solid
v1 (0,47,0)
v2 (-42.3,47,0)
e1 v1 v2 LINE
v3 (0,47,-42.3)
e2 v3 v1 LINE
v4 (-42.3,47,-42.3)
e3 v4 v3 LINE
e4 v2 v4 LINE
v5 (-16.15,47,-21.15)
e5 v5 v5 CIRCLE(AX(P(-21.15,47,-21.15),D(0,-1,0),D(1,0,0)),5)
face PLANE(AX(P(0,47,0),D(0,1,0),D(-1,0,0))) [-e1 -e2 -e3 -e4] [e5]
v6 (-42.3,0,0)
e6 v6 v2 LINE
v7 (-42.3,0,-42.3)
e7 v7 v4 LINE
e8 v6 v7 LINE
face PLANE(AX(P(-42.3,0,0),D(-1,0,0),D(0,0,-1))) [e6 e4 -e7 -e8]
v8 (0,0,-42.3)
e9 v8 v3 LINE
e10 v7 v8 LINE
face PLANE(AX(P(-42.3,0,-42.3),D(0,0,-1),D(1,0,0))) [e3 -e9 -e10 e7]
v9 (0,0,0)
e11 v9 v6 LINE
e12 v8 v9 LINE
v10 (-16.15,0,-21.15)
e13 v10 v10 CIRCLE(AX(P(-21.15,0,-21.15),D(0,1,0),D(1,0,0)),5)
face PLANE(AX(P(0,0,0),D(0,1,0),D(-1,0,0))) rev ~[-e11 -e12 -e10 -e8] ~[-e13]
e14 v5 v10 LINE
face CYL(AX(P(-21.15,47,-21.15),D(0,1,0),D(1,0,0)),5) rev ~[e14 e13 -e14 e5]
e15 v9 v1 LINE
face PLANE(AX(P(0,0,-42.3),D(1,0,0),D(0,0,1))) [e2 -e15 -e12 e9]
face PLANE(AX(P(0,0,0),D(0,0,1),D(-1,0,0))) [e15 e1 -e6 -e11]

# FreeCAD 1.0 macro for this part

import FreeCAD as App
import Part
import Sketcher

V = App.Vector
Q = App.Units.Quantity


def add_polygon(sketch, points):
    """Adds a closed chain of lines whose ends are joined by coincident constraints."""
    first, n = sketch.GeometryCount, len(points)
    for a, b in zip(points, points[1:] + points[:1]):
        sketch.addGeometry(Part.LineSegment(App.Vector(*a, 0), App.Vector(*b, 0)), False)
    for i in range(n):
        sketch.addConstraint(Sketcher.Constraint("Coincident", first + i, 2, first + (i + 1) % n, 1))

doc = App.newDocument("Part")
body = doc.addObject("PartDesign::Body", "Body")

# Sketch on XZ plane
sketch1 = body.newObject("Sketcher::SketchObject", "Sketch")
sketch1.AttachmentSupport = (doc.getObject("XZ_Plane"), [""])
sketch1.MapMode = "FlatFace"
add_polygon(sketch1, [(-42, 0), (0, 0), (0, -42), (-42, -42)])  # lines 0-3
sketch1.addConstraint(Sketcher.Constraint("Horizontal", 0))
sketch1.addConstraint(Sketcher.Constraint("Vertical", 1))
sketch1.addConstraint(Sketcher.Constraint("Horizontal", 2))
sketch1.addConstraint(Sketcher.Constraint("Vertical", 3))
sketch1.addConstraint(Sketcher.Constraint("Coincident", 0, 2, -1, 1))
sketch1.addConstraint(Sketcher.Constraint("Equal", 2, 1))
sketch1.addConstraint(Sketcher.Constraint("DistanceX", 0, 1, 0, 2, Q("42.3 mm")))
pad1 = body.newObject("PartDesign::Pad", "Pad")
pad1.Profile = sketch1
pad1.Length = 47
pad1.Reversed = True

# Sketch on XZ plane
sketch2 = body.newObject("Sketcher::SketchObject", "Sketch001")
sketch2.AttachmentSupport = (doc.getObject("XZ_Plane"), [""])
sketch2.MapMode = "FlatFace"
sketch2.AttachmentOffset = App.Placement(V(0, 0, -47), App.Rotation())
sketch2.addGeometry(Part.Circle(V(-21, -21, 0), V(0, 0, 1), 5), False)
sketch2.addConstraint(Sketcher.Constraint("Diameter", 0, Q("10 mm")))
sketch2.addConstraint(Sketcher.Constraint("DistanceX", 0, 3, -1, 1, Q("21.15 mm")))
sketch2.addConstraint(Sketcher.Constraint("DistanceY", 0, 3, -1, 1, Q("21.15 mm")))
pocket1 = body.newObject("PartDesign::Pocket", "Pocket")
pocket1.Profile = sketch2
pocket1.Length = 47
pocket1.Reversed = True

doc.recompute()
